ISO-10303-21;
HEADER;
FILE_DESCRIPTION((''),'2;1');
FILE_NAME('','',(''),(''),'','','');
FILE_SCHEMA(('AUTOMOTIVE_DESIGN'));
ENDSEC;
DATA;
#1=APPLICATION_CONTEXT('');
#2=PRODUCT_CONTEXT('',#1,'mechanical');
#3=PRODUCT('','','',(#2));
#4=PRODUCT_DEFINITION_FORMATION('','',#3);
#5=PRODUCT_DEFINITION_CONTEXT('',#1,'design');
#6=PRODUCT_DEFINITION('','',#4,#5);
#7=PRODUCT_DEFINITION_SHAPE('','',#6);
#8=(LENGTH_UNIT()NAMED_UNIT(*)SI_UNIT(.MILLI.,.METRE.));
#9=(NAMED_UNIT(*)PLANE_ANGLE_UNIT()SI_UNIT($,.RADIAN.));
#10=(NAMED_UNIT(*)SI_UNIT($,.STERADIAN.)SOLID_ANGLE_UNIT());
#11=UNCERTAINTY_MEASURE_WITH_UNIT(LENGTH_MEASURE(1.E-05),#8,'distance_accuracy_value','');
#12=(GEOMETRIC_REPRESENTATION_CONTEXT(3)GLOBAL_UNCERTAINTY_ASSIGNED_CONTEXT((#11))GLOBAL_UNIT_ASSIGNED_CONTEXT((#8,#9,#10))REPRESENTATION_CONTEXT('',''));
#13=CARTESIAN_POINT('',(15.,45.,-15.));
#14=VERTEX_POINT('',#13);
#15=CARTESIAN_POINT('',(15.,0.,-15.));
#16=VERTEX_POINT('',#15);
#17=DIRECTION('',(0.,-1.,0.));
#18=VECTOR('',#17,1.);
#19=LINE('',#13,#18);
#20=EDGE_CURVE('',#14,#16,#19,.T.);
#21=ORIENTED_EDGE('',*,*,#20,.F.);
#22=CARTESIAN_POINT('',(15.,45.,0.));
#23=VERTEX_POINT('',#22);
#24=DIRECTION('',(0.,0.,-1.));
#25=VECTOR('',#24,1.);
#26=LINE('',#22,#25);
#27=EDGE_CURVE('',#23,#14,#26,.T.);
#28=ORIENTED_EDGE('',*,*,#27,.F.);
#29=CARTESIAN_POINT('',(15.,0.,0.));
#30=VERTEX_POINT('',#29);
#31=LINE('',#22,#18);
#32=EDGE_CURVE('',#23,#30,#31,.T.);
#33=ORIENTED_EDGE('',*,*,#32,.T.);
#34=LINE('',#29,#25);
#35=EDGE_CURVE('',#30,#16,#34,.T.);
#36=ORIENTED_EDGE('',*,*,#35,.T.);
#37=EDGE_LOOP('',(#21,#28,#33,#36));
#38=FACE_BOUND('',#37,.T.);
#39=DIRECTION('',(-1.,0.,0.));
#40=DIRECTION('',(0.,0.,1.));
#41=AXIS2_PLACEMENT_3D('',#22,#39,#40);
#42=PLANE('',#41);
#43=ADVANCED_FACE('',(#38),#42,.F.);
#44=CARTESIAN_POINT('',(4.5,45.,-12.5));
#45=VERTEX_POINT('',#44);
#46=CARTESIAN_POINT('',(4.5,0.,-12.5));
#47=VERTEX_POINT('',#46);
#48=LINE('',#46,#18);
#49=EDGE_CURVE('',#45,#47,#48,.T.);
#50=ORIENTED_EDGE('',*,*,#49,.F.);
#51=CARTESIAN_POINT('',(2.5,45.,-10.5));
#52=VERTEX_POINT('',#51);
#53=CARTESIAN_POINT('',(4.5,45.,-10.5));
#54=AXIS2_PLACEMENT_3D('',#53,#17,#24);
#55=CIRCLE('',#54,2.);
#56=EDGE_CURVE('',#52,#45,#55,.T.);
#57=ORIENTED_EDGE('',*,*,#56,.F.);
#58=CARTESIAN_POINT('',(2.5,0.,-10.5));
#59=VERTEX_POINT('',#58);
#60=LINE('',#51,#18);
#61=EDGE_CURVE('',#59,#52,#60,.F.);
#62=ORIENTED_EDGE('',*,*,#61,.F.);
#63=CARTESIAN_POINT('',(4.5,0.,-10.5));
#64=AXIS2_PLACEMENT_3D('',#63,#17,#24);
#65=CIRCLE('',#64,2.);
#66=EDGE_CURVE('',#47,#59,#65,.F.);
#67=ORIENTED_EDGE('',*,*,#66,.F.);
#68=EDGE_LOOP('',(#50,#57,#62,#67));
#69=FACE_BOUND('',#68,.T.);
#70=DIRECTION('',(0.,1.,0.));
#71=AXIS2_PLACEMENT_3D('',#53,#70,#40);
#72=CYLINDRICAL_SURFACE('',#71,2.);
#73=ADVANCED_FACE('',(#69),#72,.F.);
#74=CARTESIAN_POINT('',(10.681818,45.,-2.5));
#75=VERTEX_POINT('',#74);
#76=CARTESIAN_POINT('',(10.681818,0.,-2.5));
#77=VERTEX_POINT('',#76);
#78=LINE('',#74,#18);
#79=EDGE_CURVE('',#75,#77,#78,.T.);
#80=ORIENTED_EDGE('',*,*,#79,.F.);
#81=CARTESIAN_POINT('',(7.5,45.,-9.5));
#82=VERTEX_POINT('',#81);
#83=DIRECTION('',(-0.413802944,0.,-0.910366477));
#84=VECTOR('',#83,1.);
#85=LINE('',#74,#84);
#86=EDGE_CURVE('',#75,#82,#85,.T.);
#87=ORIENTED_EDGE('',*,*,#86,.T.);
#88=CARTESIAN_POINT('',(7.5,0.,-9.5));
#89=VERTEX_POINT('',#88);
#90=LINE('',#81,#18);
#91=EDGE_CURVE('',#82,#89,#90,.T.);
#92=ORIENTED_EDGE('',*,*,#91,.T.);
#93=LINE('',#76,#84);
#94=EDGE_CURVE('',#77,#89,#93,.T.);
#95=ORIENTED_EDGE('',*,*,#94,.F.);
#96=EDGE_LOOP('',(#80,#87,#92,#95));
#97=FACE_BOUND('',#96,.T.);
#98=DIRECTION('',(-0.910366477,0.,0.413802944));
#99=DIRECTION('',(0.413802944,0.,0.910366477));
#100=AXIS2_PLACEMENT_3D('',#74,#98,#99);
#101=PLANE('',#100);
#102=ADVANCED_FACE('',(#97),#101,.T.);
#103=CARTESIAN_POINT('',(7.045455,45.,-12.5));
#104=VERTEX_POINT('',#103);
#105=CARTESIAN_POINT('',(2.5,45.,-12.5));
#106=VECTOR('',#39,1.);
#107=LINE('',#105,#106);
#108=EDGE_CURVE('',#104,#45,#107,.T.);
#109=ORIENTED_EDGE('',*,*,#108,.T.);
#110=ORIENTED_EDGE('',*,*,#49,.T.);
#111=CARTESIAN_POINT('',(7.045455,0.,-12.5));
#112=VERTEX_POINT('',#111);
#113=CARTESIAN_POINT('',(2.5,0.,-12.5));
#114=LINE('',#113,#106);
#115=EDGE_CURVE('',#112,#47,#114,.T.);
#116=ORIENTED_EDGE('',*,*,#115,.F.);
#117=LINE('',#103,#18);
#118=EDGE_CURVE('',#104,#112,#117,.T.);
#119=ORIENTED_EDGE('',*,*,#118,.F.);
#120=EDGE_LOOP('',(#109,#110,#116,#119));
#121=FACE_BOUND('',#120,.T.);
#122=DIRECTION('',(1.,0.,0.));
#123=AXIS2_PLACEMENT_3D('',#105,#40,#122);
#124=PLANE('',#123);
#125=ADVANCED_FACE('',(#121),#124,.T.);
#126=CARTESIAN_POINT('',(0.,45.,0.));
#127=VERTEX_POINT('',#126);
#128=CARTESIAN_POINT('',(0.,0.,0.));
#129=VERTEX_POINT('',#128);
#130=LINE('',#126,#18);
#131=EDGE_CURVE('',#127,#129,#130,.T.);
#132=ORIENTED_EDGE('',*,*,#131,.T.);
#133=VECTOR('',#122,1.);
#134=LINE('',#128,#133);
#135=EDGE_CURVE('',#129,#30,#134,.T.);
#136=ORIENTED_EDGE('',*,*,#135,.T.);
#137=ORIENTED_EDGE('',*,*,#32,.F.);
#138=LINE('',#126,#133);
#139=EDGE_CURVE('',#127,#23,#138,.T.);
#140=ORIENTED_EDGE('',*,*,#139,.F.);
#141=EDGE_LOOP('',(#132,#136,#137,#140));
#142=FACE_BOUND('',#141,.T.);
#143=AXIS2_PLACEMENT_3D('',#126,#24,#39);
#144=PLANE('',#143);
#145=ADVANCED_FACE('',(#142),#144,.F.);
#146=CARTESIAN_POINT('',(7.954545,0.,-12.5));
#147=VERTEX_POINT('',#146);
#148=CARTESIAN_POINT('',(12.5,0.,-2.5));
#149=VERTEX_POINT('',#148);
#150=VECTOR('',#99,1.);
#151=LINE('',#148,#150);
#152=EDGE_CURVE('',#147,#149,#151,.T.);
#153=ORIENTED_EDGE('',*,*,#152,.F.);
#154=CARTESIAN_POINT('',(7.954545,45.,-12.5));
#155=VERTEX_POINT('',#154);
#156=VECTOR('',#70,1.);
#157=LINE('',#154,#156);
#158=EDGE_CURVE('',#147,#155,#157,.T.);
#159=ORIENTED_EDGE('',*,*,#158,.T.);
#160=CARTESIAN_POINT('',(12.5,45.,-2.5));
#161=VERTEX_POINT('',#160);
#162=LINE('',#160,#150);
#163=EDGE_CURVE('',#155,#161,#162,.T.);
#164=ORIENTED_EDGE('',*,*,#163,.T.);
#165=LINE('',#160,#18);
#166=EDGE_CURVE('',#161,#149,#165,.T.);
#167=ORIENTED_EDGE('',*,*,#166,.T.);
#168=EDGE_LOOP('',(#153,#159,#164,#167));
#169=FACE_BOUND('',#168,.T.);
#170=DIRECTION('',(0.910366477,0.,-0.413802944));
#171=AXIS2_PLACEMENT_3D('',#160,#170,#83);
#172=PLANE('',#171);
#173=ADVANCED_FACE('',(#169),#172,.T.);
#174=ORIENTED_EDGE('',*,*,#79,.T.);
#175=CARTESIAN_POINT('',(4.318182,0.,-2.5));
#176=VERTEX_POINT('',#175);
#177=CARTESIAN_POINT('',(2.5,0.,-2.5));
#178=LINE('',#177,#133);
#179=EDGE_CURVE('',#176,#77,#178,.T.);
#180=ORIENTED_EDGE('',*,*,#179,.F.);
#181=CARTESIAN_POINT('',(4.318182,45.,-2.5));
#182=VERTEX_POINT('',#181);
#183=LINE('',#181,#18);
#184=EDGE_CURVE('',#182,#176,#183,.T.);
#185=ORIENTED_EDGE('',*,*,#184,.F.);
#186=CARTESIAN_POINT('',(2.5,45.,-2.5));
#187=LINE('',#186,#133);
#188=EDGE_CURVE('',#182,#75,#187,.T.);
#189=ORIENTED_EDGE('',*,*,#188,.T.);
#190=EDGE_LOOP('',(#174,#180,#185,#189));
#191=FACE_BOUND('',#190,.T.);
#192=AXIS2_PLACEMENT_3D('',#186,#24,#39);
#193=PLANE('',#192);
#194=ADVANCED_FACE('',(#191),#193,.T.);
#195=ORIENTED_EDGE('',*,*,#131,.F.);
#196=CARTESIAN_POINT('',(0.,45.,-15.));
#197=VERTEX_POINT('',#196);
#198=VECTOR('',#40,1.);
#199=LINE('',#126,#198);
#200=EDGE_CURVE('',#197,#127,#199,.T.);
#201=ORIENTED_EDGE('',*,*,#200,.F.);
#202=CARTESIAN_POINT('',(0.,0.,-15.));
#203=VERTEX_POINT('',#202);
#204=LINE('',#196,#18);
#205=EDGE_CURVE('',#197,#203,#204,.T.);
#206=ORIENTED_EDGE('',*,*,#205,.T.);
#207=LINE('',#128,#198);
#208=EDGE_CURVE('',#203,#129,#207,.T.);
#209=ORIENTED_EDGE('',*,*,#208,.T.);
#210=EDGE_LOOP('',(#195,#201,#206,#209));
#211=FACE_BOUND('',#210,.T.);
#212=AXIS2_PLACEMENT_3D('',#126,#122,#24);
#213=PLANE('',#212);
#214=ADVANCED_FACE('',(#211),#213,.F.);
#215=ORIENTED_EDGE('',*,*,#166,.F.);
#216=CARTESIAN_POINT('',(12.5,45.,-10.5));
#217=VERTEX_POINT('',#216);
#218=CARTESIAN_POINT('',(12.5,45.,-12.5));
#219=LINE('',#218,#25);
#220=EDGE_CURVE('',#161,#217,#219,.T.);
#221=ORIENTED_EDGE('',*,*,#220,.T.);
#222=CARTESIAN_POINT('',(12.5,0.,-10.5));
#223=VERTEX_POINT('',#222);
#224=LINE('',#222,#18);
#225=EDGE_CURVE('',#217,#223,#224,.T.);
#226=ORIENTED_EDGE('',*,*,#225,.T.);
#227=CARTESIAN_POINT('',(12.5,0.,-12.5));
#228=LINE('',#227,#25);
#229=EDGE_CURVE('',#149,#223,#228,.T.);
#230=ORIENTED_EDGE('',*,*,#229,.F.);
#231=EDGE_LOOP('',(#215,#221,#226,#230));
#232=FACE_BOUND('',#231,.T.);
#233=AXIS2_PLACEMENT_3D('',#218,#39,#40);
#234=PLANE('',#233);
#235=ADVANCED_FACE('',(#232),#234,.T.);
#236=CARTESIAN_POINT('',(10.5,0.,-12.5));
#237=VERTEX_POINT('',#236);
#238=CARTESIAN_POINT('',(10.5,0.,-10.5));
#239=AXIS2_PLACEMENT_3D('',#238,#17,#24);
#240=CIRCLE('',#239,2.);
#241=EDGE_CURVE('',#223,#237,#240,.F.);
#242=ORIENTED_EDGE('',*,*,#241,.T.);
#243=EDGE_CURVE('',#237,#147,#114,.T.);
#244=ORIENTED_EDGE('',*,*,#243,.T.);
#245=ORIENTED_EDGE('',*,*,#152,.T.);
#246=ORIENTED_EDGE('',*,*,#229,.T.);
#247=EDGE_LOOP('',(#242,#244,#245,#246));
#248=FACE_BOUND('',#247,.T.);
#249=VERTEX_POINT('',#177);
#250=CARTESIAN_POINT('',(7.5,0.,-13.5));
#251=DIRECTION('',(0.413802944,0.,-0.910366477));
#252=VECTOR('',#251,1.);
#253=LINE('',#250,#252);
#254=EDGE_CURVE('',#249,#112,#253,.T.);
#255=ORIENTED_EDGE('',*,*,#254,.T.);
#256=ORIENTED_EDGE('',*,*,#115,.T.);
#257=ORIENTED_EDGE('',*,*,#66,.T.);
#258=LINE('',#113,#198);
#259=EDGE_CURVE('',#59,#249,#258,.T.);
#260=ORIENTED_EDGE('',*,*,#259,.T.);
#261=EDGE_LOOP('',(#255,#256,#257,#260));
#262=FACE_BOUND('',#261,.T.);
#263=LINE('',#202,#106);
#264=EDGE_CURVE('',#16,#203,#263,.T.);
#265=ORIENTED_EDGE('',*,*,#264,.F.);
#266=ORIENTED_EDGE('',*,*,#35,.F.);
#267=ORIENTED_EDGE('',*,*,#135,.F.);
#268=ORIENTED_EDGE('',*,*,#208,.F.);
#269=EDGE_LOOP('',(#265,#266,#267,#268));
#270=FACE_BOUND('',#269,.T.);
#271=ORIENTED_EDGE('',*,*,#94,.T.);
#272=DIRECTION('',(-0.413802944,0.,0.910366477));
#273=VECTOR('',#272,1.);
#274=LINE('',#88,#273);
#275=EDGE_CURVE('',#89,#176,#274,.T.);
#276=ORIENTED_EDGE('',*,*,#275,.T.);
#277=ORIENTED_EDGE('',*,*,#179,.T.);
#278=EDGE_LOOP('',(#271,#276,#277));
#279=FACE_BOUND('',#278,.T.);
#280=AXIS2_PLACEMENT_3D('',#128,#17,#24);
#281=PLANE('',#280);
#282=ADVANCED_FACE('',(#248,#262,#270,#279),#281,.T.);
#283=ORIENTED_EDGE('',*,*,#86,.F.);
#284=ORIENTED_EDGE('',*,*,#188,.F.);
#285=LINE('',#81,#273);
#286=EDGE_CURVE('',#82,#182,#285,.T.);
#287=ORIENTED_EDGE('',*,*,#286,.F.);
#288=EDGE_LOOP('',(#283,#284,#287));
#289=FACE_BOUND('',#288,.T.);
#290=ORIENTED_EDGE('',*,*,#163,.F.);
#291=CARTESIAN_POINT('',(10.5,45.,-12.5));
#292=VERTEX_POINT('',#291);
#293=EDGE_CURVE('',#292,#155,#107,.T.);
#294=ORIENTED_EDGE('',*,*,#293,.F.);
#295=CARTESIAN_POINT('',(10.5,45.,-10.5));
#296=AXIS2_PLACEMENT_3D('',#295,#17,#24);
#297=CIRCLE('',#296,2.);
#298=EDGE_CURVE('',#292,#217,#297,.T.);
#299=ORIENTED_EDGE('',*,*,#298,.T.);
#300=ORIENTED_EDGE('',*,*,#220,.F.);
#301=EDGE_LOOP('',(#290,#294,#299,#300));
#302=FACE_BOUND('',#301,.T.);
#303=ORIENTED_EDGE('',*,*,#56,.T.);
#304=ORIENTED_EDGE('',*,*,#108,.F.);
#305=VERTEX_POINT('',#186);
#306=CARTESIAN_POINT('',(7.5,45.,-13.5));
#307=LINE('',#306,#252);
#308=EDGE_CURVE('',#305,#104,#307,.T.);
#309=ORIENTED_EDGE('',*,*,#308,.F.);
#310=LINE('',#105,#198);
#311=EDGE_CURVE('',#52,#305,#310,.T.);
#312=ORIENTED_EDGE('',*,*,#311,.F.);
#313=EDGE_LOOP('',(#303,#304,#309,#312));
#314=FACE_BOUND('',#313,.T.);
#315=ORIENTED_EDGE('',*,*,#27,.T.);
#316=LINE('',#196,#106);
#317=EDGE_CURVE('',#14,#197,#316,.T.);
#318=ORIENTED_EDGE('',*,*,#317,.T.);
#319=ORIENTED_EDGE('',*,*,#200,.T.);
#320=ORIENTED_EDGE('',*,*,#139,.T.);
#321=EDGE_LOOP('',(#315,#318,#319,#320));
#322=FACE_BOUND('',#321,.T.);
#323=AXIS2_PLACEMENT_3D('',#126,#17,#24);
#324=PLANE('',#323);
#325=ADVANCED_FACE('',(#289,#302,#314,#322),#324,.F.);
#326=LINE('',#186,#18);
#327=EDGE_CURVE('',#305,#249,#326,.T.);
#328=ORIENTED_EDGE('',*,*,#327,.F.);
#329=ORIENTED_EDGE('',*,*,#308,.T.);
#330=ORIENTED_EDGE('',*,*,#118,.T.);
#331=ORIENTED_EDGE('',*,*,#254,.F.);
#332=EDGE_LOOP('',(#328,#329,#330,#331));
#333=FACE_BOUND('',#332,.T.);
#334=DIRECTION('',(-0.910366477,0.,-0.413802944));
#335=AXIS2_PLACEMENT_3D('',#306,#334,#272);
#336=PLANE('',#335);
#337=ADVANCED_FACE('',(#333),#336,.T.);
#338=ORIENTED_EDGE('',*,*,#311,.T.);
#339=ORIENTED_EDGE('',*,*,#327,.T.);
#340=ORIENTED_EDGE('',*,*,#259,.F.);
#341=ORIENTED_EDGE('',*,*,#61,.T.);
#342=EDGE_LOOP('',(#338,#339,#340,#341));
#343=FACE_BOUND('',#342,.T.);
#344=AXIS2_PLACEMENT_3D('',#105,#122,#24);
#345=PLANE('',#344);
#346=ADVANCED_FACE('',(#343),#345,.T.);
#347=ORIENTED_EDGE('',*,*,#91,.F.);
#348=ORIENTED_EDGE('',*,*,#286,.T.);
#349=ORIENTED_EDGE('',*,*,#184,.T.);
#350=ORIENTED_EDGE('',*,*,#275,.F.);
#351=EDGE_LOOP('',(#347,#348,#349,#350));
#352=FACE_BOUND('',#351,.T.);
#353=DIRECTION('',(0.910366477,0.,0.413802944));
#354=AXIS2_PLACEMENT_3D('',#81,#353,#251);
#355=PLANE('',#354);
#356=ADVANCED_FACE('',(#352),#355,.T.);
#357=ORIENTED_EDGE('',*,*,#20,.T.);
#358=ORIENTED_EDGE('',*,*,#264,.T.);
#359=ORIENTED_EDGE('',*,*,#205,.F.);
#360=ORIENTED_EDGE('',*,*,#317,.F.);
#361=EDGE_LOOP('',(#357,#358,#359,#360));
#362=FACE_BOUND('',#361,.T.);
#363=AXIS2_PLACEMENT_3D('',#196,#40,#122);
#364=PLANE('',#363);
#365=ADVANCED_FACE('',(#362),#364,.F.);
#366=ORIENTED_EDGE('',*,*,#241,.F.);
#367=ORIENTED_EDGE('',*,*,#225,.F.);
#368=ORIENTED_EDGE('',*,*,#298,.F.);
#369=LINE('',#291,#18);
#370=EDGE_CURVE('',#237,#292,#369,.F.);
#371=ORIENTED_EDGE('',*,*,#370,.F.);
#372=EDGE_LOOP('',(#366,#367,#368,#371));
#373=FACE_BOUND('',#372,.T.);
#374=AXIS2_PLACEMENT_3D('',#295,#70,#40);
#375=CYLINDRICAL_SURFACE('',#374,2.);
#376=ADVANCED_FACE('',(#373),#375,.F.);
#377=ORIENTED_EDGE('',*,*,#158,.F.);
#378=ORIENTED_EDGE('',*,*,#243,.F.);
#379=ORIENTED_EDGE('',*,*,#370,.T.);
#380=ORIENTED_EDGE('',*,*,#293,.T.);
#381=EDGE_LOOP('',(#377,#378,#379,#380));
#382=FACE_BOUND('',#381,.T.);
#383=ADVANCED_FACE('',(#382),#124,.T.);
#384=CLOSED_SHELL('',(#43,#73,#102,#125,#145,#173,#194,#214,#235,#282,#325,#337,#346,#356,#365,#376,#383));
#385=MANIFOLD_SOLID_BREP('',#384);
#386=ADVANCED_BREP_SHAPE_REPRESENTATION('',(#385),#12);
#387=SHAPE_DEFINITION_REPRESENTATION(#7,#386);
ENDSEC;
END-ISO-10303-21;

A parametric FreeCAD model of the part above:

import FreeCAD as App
import Part
import Sketcher
Q = App.Units.Quantity


def edges_at(feature, points):
    """Names of the edges that pass closest to the given points."""
    edges = feature.Shape.Edges
    near = lambda p: min(range(len(edges)), key=lambda i: edges[i].distToShape(Part.Vertex(*p))[0])
    return sorted({f"Edge{near(p) + 1}" for p in points})


def add_polygon(sketch, points):
    """Adds a closed chain of lines whose ends are joined by coincident constraints."""
    first, n = sketch.GeometryCount, len(points)
    for a, b in zip(points, points[1:] + points[:1]):
        sketch.addGeometry(Part.LineSegment(App.Vector(*a, 0), App.Vector(*b, 0)), False)
    for i in range(n):
        sketch.addConstraint(Sketcher.Constraint("Coincident", first + i, 2, first + (i + 1) % n, 1))

doc = App.newDocument("Part")
body = doc.addObject("PartDesign::Body", "Body")

# Sketch on XZ plane
sketch1 = body.newObject("Sketcher::SketchObject", "Sketch")
sketch1.AttachmentSupport = (doc.getObject("XZ_Plane"), [""])
sketch1.MapMode = "FlatFace"
add_polygon(sketch1, [(0, -15), (0, 0), (15, 0), (15, -15)])  # lines 0-3
add_polygon(sketch1, [(12, -2), (2, -2), (2, -12), (12, -12)])  # lines 4-7
sketch1.addConstraint(Sketcher.Constraint("Vertical", 0))
sketch1.addConstraint(Sketcher.Constraint("Horizontal", 1))
sketch1.addConstraint(Sketcher.Constraint("Vertical", 2))
sketch1.addConstraint(Sketcher.Constraint("Horizontal", 3))
sketch1.addConstraint(Sketcher.Constraint("Horizontal", 4))
sketch1.addConstraint(Sketcher.Constraint("Vertical", 5))
sketch1.addConstraint(Sketcher.Constraint("Horizontal", 6))
sketch1.addConstraint(Sketcher.Constraint("Vertical", 7))
sketch1.addConstraint(Sketcher.Constraint("Coincident", 0, 2, -1, 1))
sketch1.addConstraint(Sketcher.Constraint("Equal", 3, 0))
sketch1.addConstraint(Sketcher.Constraint("Equal", 6, 5))
sketch1.addConstraint(Sketcher.Constraint("DistanceX", 1, 1, 1, 2, Q("15 mm")))
sketch1.addConstraint(Sketcher.Constraint("DistanceX", 4, 2, 4, 1, Q("10 mm")))
sketch1.addConstraint(Sketcher.Constraint("DistanceX", -1, 1, 4, 2, Q("2.5 mm")))
sketch1.addConstraint(Sketcher.Constraint("DistanceY", 4, 2, -1, 1, Q("2.5 mm")))
pad1 = body.newObject("PartDesign::Pad", "Pad")
pad1.Profile = sketch1
pad1.Length = 45
pad1.Reversed = True

# Sketch on XZ plane
sketch2 = body.newObject("Sketcher::SketchObject", "Sketch001")
sketch2.AttachmentSupport = (doc.getObject("XZ_Plane"), [""])
sketch2.MapMode = "FlatFace"
add_polygon(sketch2, [(7.5, -13.5), (12.5, -2.5), (10.7, -2.5), (7.5, -9.5), (4.3, -2.5), (2.5, -2.5)])  # lines 0-5
sketch2.addConstraint(Sketcher.Constraint("Horizontal", 1))
sketch2.addConstraint(Sketcher.Constraint("Horizontal", 4))
sketch2.addConstraint(Sketcher.Constraint("Parallel", 0, 2))
sketch2.addConstraint(Sketcher.Constraint("Parallel", 3, 5))
sketch2.addConstraint(Sketcher.Constraint("Horizontal", 1, 2, 3, 2))
sketch2.addConstraint(Sketcher.Constraint("Vertical", 2, 2, 5, 2))
sketch2.addConstraint(Sketcher.Constraint("Equal", 1, 4))
sketch2.addConstraint(Sketcher.Constraint("DistanceY", 2, 2, 1, 2, Q("7 mm")))
sketch2.addConstraint(Sketcher.Constraint("DistanceX", 2, 2, 0, 2, Q("5 mm")))
sketch2.addConstraint(Sketcher.Constraint("DistanceY", 5, 2, 2, 2, Q("4 mm")))
sketch2.addConstraint(Sketcher.Constraint("DistanceX", -1, 1, 0, 2, Q("12.5 mm")))
sketch2.addConstraint(Sketcher.Constraint("DistanceY", 0, 2, -1, 1, Q("2.5 mm")))
pad2 = body.newObject("PartDesign::Pad", "Pad001")
pad2.Profile = sketch2
pad2.Length = 45
pad2.Reversed = True
doc.recompute()

fillet = body.newObject("PartDesign::Fillet", "Fillet")
fillet.Base = (pad2, edges_at(pad2, [(2.5, 22.5, -12.5), (12.5, 22.5, -12.5)]))
fillet.Radius = 2

doc.recompute()
